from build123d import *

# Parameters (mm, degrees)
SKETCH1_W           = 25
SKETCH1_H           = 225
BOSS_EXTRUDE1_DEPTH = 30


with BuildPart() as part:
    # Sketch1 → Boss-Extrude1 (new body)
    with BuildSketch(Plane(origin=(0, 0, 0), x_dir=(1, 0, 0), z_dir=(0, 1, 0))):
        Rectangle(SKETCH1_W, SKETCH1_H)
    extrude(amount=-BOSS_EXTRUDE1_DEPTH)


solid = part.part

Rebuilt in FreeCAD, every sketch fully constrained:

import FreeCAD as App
import Part
import Sketcher

V = App.Vector
Q = App.Units.Quantity

doc = App.newDocument("Part")
params = doc.addObject("Spreadsheet::Sheet", "Params")
for row, (alias, value) in enumerate([
    ("sketch1_width", "25 mm"),
    ("sketch1_height", "225 mm"),
    ("pad1_length", "30 mm"),
], start=1):
    params.set(f"A{row}", alias)
    params.set(f"B{row}", "=" + value)
    params.setAlias(f"B{row}", alias)

body = doc.addObject("PartDesign::Body", "Body")

# Sketch on XZ plane
sketch1 = body.newObject("Sketcher::SketchObject", "Sketch")
sketch1.AttachmentSupport = (doc.getObject("XZ_Plane"), [""])
sketch1.MapMode = "FlatFace"
sketch1.addGeometry(Part.LineSegment(V(-12, -112, 0), V(-12, 112, 0)), False)
sketch1.addGeometry(Part.LineSegment(V(-12, 112, 0), V(12, 112, 0)), False)
sketch1.addGeometry(Part.LineSegment(V(12, 112, 0), V(12, -112, 0)), False)
sketch1.addGeometry(Part.LineSegment(V(12, -112, 0), V(-12, -112, 0)), False)
sketch1.addConstraint(Sketcher.Constraint("Coincident", 0, 2, 1, 1))
sketch1.addConstraint(Sketcher.Constraint("Coincident", 1, 2, 2, 1))
sketch1.addConstraint(Sketcher.Constraint("Coincident", 2, 2, 3, 1))
sketch1.addConstraint(Sketcher.Constraint("Coincident", 3, 2, 0, 1))
sketch1.addConstraint(Sketcher.Constraint("Vertical", 0))
sketch1.addConstraint(Sketcher.Constraint("Horizontal", 1))
sketch1.addConstraint(Sketcher.Constraint("Vertical", 2))
sketch1.addConstraint(Sketcher.Constraint("Horizontal", 3))
sketch1.addConstraint(Sketcher.Constraint("Symmetric", 0, 2, 2, 2, -1, 1))
sketch1.addConstraint(Sketcher.Constraint("DistanceX", 1, 1, 1, 2, Q("25 mm")))
sketch1.addConstraint(Sketcher.Constraint("DistanceY", 0, 1, 0, 2, Q("225 mm")))
sketch1.setExpression("Constraints[9]", "Params.sketch1_width")
sketch1.setExpression("Constraints[10]", "Params.sketch1_height")
pad1 = body.newObject("PartDesign::Pad", "Pad")
pad1.Profile = sketch1
pad1.setExpression("Length", "Params.pad1_length")

doc.recompute()
